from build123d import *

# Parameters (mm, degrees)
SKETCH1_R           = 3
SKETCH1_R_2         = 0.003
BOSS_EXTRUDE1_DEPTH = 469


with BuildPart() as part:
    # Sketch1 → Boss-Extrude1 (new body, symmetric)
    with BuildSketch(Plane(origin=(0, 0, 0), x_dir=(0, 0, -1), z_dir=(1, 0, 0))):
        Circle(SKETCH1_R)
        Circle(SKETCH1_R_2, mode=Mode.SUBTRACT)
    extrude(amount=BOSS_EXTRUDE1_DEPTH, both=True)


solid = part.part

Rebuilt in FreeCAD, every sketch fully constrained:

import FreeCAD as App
import Part
import Sketcher

V = App.Vector

doc = App.newDocument("Part")
body = doc.addObject("PartDesign::Body", "Body")

# Sketch on YZ plane
sketch1 = body.newObject("Sketcher::SketchObject", "Sketch")
sketch1.AttachmentSupport = (doc.getObject("YZ_Plane"), [""])
sketch1.MapMode = "FlatFace"
sketch1.addGeometry([
    Part.Circle(V(0, 0, 0), V(0, 0, 1), 3),
    Part.Circle(V(0, 0, 0), V(0, 0, 1), 0.003),
], False)
sketch1.addConstraint([
    Sketcher.Constraint("Coincident", 0, 3, -1, 1),
    Sketcher.Constraint("Coincident", 1, 3, -1, 1),
    Sketcher.Constraint("Diameter", 0, 6.0),
    Sketcher.Constraint("Diameter", 1, 0.006),
])
pad1 = body.newObject("PartDesign::Pad", "Pad")
pad1.Profile = sketch1
pad1.Length = 938
pad1.Midplane = True

doc.recompute()
